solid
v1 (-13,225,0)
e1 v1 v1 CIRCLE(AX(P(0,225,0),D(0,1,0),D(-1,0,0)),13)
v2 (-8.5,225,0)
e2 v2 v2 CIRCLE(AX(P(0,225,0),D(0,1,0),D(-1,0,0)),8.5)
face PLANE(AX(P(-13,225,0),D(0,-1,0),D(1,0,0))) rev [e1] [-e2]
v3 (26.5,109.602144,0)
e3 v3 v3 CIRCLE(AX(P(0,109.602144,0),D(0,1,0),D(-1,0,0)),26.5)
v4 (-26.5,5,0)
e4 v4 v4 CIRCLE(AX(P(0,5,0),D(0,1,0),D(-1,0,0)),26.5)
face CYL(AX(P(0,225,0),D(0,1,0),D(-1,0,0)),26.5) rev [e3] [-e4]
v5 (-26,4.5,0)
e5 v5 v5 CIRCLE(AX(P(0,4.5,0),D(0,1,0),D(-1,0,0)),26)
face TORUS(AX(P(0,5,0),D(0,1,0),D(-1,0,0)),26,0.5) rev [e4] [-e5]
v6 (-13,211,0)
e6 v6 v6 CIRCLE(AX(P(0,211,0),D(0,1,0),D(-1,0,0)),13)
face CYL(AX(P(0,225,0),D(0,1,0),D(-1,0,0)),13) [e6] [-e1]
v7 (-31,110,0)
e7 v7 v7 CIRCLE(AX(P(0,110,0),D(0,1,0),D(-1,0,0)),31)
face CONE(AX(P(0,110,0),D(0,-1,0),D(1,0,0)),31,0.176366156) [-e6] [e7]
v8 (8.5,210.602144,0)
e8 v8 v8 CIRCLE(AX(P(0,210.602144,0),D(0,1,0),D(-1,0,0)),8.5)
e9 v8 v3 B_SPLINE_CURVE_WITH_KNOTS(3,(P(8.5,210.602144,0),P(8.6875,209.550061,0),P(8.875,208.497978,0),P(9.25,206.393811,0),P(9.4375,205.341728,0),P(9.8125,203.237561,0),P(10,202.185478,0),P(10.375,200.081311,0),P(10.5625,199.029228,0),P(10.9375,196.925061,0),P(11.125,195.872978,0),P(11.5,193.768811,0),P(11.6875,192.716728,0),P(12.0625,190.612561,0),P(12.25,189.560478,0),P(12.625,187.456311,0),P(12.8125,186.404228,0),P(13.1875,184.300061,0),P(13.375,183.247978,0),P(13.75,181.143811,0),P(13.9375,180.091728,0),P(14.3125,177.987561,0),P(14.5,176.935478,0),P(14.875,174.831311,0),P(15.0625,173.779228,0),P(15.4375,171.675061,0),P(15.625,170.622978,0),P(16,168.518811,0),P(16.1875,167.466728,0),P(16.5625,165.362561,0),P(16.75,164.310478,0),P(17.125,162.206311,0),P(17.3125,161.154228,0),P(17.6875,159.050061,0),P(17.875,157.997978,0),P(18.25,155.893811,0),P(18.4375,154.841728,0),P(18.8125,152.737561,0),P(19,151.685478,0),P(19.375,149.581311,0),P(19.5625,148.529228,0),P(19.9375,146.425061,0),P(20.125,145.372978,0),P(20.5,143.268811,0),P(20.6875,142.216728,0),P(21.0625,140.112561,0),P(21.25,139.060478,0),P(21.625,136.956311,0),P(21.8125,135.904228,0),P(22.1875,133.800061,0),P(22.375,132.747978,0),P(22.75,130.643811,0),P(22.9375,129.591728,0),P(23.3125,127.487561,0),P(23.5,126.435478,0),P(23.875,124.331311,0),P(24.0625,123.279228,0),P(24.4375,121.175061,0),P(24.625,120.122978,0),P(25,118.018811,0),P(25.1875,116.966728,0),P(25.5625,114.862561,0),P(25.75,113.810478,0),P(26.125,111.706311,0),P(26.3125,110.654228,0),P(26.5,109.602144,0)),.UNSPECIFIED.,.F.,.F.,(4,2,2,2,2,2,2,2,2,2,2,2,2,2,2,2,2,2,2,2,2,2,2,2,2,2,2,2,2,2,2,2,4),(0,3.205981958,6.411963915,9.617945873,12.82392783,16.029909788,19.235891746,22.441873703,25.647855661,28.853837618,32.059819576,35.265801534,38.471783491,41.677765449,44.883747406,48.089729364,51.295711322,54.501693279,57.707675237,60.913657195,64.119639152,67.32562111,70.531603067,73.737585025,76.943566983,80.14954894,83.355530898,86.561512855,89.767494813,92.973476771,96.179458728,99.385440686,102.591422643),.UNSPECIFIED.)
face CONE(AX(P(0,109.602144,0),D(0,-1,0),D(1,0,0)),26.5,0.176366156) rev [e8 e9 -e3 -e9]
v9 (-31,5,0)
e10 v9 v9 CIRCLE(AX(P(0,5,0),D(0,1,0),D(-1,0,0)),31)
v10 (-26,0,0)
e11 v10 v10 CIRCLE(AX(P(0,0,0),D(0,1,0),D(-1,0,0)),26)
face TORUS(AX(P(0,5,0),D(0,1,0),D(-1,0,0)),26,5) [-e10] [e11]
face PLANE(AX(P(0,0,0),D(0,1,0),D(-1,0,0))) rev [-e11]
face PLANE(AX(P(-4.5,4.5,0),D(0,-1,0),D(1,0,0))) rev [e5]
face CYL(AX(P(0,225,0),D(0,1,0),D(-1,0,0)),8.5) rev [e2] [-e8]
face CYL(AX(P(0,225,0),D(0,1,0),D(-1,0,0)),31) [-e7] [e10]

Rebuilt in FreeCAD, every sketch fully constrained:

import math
import FreeCAD as App
import Part
import Sketcher
from FreeCAD import Vector
Q = App.Units.Quantity

doc = App.newDocument("Part")
body = doc.addObject("PartDesign::Body", "Body")

# Sketch on XY plane
sketch1 = body.newObject("Sketcher::SketchObject", "Sketch")
sketch1.AttachmentSupport = (doc.getObject("XY_Plane"), [""])
sketch1.MapMode = "FlatFace"
sketch1.addGeometry(Part.LineSegment(Vector(-26, 0, 0), Vector(0, 0, 0)), False)
sketch1.addGeometry(Part.LineSegment(Vector(0, 0, 0), Vector(0, 4.5, 0)), False)
sketch1.addGeometry(Part.LineSegment(Vector(0, 4.5, 0), Vector(-26, 4.5, 0)), False)
sketch1.addGeometry(Part.ArcOfCircle(Part.Circle(Vector(-26, 5, 0), Vector(0, 0, 1), 0.5), math.radians(180), math.radians(270)), False)
sketch1.addGeometry(Part.LineSegment(Vector(-26.5, 5, 0), Vector(-26.5, 109.602144, 0)), False)
sketch1.addGeometry(Part.LineSegment(Vector(-26.5, 109.602144, 0), Vector(-8.5, 210.602144, 0)), False)
sketch1.addGeometry(Part.LineSegment(Vector(-8.5, 210.602144, 0), Vector(-8.5, 225, 0)), False)
sketch1.addGeometry(Part.LineSegment(Vector(-8.5, 225, 0), Vector(-13, 225, 0)), False)
sketch1.addGeometry(Part.LineSegment(Vector(-13, 225, 0), Vector(-13, 211, 0)), False)
sketch1.addGeometry(Part.LineSegment(Vector(-13, 211, 0), Vector(-31, 110, 0)), False)
sketch1.addGeometry(Part.LineSegment(Vector(-31, 110, 0), Vector(-31, 5, 0)), False)
sketch1.addGeometry(Part.ArcOfCircle(Part.Circle(Vector(-26, 5, 0), Vector(0, 0, 1), 5), math.radians(180), math.radians(270)), False)
sketch1.addConstraint(Sketcher.Constraint("Coincident", 0, 2, 1, 1))
sketch1.addConstraint(Sketcher.Constraint("Coincident", 1, 2, 2, 1))
sketch1.addConstraint(Sketcher.Constraint("Tangent", 2, 2, 3, 2))
sketch1.addConstraint(Sketcher.Constraint("Tangent", 3, 1, 4, 1))
sketch1.addConstraint(Sketcher.Constraint("Coincident", 4, 2, 5, 1))
sketch1.addConstraint(Sketcher.Constraint("Coincident", 5, 2, 6, 1))
sketch1.addConstraint(Sketcher.Constraint("Coincident", 6, 2, 7, 1))
sketch1.addConstraint(Sketcher.Constraint("Coincident", 7, 2, 8, 1))
sketch1.addConstraint(Sketcher.Constraint("Coincident", 8, 2, 9, 1))
sketch1.addConstraint(Sketcher.Constraint("Coincident", 9, 2, 10, 1))
sketch1.addConstraint(Sketcher.Constraint("Tangent", 10, 2, 11, 1))
sketch1.addConstraint(Sketcher.Constraint("Tangent", 11, 2, 0, 1))
sketch1.addConstraint(Sketcher.Constraint("Horizontal", 0))
sketch1.addConstraint(Sketcher.Constraint("Vertical", 1))
sketch1.addConstraint(Sketcher.Constraint("Horizontal", 2))
sketch1.addConstraint(Sketcher.Constraint("Vertical", 4))
sketch1.addConstraint(Sketcher.Constraint("Vertical", 6))
sketch1.addConstraint(Sketcher.Constraint("Horizontal", 7))
sketch1.addConstraint(Sketcher.Constraint("Vertical", 8))
sketch1.addConstraint(Sketcher.Constraint("Vertical", 10))
sketch1.addConstraint(Sketcher.Constraint("Coincident", 0, 2, -1, 1))
sketch1.addConstraint(Sketcher.Constraint("Coincident", 11, 3, 3, 3))
sketch1.addConstraint(Sketcher.Constraint("Parallel", 5, 9))
sketch1.addConstraint(Sketcher.Constraint("Equal", 7, 1))
sketch1.addConstraint(Sketcher.Constraint("Radius", 11, Q("5 mm")))
sketch1.addConstraint(Sketcher.Constraint("Radius", 3, Q("0.5 mm")))
sketch1.addConstraint(Sketcher.Constraint("DistanceX", 0, 1, 0, 2, Q("26 mm")))
sketch1.addConstraint(Sketcher.Constraint("DistanceY", 8, 2, 8, 1, Q("14 mm")))
sketch1.addConstraint(Sketcher.Constraint("DistanceY", 10, 2, 10, 1, Q("105 mm")))
sketch1.addConstraint(Sketcher.Constraint("DistanceY", -1, 1, 6, 2, Q("225 mm")))
sketch1.addConstraint(Sketcher.Constraint("DistanceX", 7, 2, -1, 1, Q("13 mm")))
sketch1.addConstraint(Sketcher.Constraint("DistanceY", 4, 1, 4, 2, Q("104.602144 mm")))
revolution = body.newObject("PartDesign::Revolution", "Revolution")
revolution.Profile = sketch1
revolution.ReferenceAxis = (sketch1, ["V_Axis"])
revolution.Angle = 360

doc.recompute()
